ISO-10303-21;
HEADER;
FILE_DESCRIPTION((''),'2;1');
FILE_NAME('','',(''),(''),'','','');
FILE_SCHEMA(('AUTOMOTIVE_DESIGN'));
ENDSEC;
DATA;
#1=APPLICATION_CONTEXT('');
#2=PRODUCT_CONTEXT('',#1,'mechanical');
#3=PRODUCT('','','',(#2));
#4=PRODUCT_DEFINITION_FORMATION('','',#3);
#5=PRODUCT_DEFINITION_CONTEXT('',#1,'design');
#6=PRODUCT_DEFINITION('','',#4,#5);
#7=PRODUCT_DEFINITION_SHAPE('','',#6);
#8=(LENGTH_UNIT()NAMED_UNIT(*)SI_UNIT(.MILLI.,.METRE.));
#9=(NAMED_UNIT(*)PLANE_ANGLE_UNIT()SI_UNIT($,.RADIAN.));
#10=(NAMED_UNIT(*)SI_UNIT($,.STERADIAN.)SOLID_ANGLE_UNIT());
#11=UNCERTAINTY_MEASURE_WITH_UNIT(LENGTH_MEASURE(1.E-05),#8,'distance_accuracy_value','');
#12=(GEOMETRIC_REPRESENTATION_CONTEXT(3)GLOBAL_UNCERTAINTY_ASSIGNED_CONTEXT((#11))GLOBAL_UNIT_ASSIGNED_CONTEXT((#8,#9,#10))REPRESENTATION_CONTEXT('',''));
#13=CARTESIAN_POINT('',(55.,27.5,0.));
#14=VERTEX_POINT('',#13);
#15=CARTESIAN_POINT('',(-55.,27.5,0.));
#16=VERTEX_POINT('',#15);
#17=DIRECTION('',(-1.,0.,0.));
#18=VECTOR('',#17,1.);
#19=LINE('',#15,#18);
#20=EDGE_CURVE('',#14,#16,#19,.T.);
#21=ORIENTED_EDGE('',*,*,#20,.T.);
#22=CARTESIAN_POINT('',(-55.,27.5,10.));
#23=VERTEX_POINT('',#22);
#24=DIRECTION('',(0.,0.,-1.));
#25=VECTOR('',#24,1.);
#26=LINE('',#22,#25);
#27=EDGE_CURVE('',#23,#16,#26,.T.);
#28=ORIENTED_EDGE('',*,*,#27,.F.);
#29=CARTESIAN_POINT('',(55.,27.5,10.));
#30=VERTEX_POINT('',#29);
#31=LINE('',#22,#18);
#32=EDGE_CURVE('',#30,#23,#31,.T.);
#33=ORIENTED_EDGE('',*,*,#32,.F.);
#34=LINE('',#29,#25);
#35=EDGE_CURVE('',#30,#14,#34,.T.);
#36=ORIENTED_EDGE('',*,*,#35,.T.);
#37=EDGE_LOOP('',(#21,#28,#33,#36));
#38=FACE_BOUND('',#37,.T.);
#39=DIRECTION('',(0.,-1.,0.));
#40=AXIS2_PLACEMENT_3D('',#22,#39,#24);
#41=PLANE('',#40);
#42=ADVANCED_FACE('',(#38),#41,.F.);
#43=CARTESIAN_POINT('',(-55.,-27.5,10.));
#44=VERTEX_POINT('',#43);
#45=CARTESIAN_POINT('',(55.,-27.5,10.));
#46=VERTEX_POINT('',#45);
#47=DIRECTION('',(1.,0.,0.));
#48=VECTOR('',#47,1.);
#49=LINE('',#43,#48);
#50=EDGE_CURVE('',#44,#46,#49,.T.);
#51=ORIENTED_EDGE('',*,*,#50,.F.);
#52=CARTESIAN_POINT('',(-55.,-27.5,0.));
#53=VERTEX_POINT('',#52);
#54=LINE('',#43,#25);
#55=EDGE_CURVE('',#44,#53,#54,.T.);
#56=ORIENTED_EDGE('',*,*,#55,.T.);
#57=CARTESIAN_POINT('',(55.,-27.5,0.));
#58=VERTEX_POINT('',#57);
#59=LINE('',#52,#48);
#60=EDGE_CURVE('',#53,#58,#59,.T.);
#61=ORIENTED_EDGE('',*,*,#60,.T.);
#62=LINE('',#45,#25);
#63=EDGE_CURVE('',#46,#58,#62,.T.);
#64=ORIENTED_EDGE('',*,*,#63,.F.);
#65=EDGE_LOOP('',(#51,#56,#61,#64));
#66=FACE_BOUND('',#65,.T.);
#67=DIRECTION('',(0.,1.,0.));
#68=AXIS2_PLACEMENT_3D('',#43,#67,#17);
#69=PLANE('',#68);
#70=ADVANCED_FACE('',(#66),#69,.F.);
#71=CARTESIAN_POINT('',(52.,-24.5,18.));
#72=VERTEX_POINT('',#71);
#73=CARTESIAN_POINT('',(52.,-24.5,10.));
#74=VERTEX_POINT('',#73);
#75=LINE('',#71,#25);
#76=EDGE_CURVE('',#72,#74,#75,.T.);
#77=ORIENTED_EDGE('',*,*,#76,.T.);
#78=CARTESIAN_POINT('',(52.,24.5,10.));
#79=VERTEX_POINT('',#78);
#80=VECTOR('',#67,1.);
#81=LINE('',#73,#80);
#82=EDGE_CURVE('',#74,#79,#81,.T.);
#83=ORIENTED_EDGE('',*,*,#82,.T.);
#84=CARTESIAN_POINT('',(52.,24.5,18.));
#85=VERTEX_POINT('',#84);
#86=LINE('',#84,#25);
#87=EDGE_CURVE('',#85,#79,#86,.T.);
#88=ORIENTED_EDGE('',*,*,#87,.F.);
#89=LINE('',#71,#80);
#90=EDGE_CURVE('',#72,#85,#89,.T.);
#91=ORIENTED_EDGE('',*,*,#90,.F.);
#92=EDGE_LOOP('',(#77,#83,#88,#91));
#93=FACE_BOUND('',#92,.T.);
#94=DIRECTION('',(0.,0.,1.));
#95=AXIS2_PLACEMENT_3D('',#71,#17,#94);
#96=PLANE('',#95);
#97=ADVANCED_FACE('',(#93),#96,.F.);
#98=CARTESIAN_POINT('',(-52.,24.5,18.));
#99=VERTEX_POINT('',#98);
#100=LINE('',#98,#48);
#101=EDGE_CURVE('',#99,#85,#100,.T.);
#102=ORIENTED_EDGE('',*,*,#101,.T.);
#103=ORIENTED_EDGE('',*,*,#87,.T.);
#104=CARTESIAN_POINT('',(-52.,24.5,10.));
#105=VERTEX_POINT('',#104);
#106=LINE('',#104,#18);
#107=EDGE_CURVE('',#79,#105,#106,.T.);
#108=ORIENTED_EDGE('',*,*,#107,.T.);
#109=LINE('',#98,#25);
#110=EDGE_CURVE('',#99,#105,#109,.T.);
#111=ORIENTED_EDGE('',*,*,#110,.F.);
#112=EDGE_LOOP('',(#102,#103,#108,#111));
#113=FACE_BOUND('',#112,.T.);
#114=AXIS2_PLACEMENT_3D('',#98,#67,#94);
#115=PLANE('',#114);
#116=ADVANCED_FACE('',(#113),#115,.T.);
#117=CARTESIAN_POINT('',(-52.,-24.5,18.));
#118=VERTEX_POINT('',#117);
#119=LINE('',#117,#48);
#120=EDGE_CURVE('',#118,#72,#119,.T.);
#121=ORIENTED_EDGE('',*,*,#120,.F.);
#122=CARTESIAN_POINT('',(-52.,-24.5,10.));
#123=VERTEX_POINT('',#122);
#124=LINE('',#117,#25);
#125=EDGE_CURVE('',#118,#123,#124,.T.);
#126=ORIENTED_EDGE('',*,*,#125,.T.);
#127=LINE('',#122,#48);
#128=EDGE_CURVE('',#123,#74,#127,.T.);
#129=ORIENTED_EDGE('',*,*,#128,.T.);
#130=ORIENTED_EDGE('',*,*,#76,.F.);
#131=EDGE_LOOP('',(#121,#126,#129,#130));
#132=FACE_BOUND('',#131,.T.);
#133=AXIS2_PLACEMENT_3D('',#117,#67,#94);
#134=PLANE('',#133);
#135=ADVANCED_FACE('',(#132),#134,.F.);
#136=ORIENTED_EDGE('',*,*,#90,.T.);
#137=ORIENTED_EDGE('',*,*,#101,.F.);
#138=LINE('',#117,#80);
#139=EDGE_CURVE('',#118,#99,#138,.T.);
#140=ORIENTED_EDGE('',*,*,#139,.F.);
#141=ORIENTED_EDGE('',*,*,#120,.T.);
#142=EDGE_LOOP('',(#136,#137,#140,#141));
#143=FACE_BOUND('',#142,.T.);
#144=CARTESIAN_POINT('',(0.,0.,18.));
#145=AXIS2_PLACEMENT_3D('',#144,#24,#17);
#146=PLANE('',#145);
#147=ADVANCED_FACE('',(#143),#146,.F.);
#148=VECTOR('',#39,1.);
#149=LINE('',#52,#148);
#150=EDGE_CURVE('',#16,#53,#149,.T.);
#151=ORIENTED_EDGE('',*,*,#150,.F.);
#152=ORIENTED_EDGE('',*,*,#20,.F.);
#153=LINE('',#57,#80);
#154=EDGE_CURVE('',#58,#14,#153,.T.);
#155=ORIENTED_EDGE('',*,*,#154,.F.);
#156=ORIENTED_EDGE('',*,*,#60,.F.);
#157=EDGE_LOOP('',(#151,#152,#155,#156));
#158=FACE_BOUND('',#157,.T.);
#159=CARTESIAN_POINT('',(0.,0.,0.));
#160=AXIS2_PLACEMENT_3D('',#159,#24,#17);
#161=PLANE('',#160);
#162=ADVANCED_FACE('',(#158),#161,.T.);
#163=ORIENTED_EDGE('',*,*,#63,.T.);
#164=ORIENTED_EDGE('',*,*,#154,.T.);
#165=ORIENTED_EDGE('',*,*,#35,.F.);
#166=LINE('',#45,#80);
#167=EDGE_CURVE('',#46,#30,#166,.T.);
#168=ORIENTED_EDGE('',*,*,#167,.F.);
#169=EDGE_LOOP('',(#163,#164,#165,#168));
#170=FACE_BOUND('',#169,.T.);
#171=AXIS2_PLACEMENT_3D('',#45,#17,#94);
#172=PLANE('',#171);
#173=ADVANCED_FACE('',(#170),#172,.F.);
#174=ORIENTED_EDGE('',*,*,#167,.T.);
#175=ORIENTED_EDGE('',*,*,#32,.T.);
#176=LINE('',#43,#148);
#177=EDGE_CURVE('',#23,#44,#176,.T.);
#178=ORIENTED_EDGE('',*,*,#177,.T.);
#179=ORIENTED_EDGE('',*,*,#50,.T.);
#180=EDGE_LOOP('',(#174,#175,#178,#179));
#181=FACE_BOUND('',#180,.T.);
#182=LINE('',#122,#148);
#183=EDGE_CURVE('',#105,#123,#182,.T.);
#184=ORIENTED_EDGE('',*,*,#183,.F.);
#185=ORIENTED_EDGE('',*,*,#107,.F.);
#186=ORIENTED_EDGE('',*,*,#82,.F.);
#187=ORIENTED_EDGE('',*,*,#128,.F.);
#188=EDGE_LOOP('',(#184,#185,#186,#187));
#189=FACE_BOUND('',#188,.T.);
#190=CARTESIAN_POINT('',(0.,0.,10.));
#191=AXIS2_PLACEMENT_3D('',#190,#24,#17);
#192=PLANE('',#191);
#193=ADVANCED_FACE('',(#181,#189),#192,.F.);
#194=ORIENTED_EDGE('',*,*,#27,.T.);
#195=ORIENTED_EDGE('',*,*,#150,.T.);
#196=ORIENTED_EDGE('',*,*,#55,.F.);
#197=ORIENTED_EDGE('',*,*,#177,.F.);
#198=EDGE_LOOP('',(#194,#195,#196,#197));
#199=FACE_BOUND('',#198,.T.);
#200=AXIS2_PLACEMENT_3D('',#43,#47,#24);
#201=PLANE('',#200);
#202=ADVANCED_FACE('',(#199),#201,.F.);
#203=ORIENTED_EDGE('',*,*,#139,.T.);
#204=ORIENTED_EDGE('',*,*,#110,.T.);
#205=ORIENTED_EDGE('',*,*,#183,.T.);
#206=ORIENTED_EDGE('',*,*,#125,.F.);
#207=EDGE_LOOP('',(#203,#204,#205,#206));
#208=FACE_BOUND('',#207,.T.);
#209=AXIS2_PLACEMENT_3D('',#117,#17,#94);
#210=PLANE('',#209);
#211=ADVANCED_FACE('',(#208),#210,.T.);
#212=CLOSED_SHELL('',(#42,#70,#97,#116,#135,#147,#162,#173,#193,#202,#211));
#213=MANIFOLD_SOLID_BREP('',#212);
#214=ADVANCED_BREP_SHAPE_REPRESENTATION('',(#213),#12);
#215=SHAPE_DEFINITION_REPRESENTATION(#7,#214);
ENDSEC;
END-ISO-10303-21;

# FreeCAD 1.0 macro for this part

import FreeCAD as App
import Part
import Sketcher
Q = App.Units.Quantity


def add_polygon(sketch, points):
    """Adds a closed chain of lines whose ends are joined by coincident constraints."""
    first, n = sketch.GeometryCount, len(points)
    for a, b in zip(points, points[1:] + points[:1]):
        sketch.addGeometry(Part.LineSegment(App.Vector(*a, 0), App.Vector(*b, 0)), False)
    for i in range(n):
        sketch.addConstraint(Sketcher.Constraint("Coincident", first + i, 2, first + (i + 1) % n, 1))

doc = App.newDocument("Part")
params = doc.addObject("Spreadsheet::Sheet", "Params")
for row, (alias, value) in enumerate([
    ("sketch1_width", "104 mm"),
    ("sketch1_height", "49 mm"),
    ("pad1_length", "18 mm"),
    ("sketch2_width", "110 mm"),
    ("sketch2_width2", "104 mm"),
    ("sketch2_height", "55 mm"),
    ("sketch2_height2", "49 mm"),
    ("pad2_length", "10 mm"),
], start=1):
    params.set(f"A{row}", alias)
    params.set(f"B{row}", "=" + value)
    params.setAlias(f"B{row}", alias)

body = doc.addObject("PartDesign::Body", "Body")

# Sketch on XY plane
sketch1 = doc.addObject("Sketcher::SketchObject", "Sketch")
body.addObject(sketch1)
sketch1.AttachmentSupport = (doc.XY_Plane, [""])
sketch1.MapMode = "FlatFace"
add_polygon(sketch1, [(-52, 24), (-52, -24), (52, -24), (52, 24)])  # lines 0-3
sketch1.addConstraint([
    Sketcher.Constraint("Vertical", 0),
    Sketcher.Constraint("Horizontal", 1),
    Sketcher.Constraint("Vertical", 2),
    Sketcher.Constraint("Horizontal", 3),
    Sketcher.Constraint("Symmetric", 0, 2, 2, 2, -1, 1),
    Sketcher.Constraint("DistanceX", 1, 1, 1, 2, Q("104 mm")),
    Sketcher.Constraint("DistanceY", 0, 2, 0, 1, Q("49 mm")),
])
sketch1.setExpression("Constraints[9]", "Params.sketch1_width")
sketch1.setExpression("Constraints[10]", "Params.sketch1_height")
pad1 = doc.addObject("PartDesign::Pad", "Pad")
body.addObject(pad1)
pad1.Profile = sketch1
pad1.setExpression("Length", "Params.pad1_length")

# Sketch on XY plane
sketch2 = doc.addObject("Sketcher::SketchObject", "Sketch001")
body.addObject(sketch2)
sketch2.AttachmentSupport = (doc.XY_Plane, [""])
sketch2.MapMode = "FlatFace"
add_polygon(sketch2, [(-55, 28), (-55, -28), (55, -28), (55, 28)])  # lines 0-3
add_polygon(sketch2, [(52, -24), (-52, -24), (-52, 24), (52, 24)])  # lines 4-7
sketch2.addConstraint([
    Sketcher.Constraint("Vertical", 0),
    Sketcher.Constraint("Horizontal", 1),
    Sketcher.Constraint("Vertical", 2),
    Sketcher.Constraint("Horizontal", 3),
    Sketcher.Constraint("Horizontal", 4),
    Sketcher.Constraint("Vertical", 5),
    Sketcher.Constraint("Horizontal", 6),
    Sketcher.Constraint("Vertical", 7),
    Sketcher.Constraint("Symmetric", 0, 2, 2, 2, -1, 1),
    Sketcher.Constraint("Symmetric", 4, 2, 6, 2, -1, 1),
    Sketcher.Constraint("DistanceX", 1, 1, 1, 2, Q("110 mm")),
    Sketcher.Constraint("DistanceX", 4, 2, 4, 1, Q("104 mm")),
    Sketcher.Constraint("DistanceY", 0, 2, 0, 1, Q("55 mm")),
    Sketcher.Constraint("DistanceY", 5, 1, 5, 2, Q("49 mm")),
])
sketch2.setExpression("Constraints[18]", "Params.sketch2_width")
sketch2.setExpression("Constraints[19]", "Params.sketch2_width2")
sketch2.setExpression("Constraints[20]", "Params.sketch2_height")
sketch2.setExpression("Constraints[21]", "Params.sketch2_height2")
pad2 = doc.addObject("PartDesign::Pad", "Pad001")
body.addObject(pad2)
pad2.Profile = sketch2
pad2.setExpression("Length", "Params.pad2_length")

doc.recompute()
